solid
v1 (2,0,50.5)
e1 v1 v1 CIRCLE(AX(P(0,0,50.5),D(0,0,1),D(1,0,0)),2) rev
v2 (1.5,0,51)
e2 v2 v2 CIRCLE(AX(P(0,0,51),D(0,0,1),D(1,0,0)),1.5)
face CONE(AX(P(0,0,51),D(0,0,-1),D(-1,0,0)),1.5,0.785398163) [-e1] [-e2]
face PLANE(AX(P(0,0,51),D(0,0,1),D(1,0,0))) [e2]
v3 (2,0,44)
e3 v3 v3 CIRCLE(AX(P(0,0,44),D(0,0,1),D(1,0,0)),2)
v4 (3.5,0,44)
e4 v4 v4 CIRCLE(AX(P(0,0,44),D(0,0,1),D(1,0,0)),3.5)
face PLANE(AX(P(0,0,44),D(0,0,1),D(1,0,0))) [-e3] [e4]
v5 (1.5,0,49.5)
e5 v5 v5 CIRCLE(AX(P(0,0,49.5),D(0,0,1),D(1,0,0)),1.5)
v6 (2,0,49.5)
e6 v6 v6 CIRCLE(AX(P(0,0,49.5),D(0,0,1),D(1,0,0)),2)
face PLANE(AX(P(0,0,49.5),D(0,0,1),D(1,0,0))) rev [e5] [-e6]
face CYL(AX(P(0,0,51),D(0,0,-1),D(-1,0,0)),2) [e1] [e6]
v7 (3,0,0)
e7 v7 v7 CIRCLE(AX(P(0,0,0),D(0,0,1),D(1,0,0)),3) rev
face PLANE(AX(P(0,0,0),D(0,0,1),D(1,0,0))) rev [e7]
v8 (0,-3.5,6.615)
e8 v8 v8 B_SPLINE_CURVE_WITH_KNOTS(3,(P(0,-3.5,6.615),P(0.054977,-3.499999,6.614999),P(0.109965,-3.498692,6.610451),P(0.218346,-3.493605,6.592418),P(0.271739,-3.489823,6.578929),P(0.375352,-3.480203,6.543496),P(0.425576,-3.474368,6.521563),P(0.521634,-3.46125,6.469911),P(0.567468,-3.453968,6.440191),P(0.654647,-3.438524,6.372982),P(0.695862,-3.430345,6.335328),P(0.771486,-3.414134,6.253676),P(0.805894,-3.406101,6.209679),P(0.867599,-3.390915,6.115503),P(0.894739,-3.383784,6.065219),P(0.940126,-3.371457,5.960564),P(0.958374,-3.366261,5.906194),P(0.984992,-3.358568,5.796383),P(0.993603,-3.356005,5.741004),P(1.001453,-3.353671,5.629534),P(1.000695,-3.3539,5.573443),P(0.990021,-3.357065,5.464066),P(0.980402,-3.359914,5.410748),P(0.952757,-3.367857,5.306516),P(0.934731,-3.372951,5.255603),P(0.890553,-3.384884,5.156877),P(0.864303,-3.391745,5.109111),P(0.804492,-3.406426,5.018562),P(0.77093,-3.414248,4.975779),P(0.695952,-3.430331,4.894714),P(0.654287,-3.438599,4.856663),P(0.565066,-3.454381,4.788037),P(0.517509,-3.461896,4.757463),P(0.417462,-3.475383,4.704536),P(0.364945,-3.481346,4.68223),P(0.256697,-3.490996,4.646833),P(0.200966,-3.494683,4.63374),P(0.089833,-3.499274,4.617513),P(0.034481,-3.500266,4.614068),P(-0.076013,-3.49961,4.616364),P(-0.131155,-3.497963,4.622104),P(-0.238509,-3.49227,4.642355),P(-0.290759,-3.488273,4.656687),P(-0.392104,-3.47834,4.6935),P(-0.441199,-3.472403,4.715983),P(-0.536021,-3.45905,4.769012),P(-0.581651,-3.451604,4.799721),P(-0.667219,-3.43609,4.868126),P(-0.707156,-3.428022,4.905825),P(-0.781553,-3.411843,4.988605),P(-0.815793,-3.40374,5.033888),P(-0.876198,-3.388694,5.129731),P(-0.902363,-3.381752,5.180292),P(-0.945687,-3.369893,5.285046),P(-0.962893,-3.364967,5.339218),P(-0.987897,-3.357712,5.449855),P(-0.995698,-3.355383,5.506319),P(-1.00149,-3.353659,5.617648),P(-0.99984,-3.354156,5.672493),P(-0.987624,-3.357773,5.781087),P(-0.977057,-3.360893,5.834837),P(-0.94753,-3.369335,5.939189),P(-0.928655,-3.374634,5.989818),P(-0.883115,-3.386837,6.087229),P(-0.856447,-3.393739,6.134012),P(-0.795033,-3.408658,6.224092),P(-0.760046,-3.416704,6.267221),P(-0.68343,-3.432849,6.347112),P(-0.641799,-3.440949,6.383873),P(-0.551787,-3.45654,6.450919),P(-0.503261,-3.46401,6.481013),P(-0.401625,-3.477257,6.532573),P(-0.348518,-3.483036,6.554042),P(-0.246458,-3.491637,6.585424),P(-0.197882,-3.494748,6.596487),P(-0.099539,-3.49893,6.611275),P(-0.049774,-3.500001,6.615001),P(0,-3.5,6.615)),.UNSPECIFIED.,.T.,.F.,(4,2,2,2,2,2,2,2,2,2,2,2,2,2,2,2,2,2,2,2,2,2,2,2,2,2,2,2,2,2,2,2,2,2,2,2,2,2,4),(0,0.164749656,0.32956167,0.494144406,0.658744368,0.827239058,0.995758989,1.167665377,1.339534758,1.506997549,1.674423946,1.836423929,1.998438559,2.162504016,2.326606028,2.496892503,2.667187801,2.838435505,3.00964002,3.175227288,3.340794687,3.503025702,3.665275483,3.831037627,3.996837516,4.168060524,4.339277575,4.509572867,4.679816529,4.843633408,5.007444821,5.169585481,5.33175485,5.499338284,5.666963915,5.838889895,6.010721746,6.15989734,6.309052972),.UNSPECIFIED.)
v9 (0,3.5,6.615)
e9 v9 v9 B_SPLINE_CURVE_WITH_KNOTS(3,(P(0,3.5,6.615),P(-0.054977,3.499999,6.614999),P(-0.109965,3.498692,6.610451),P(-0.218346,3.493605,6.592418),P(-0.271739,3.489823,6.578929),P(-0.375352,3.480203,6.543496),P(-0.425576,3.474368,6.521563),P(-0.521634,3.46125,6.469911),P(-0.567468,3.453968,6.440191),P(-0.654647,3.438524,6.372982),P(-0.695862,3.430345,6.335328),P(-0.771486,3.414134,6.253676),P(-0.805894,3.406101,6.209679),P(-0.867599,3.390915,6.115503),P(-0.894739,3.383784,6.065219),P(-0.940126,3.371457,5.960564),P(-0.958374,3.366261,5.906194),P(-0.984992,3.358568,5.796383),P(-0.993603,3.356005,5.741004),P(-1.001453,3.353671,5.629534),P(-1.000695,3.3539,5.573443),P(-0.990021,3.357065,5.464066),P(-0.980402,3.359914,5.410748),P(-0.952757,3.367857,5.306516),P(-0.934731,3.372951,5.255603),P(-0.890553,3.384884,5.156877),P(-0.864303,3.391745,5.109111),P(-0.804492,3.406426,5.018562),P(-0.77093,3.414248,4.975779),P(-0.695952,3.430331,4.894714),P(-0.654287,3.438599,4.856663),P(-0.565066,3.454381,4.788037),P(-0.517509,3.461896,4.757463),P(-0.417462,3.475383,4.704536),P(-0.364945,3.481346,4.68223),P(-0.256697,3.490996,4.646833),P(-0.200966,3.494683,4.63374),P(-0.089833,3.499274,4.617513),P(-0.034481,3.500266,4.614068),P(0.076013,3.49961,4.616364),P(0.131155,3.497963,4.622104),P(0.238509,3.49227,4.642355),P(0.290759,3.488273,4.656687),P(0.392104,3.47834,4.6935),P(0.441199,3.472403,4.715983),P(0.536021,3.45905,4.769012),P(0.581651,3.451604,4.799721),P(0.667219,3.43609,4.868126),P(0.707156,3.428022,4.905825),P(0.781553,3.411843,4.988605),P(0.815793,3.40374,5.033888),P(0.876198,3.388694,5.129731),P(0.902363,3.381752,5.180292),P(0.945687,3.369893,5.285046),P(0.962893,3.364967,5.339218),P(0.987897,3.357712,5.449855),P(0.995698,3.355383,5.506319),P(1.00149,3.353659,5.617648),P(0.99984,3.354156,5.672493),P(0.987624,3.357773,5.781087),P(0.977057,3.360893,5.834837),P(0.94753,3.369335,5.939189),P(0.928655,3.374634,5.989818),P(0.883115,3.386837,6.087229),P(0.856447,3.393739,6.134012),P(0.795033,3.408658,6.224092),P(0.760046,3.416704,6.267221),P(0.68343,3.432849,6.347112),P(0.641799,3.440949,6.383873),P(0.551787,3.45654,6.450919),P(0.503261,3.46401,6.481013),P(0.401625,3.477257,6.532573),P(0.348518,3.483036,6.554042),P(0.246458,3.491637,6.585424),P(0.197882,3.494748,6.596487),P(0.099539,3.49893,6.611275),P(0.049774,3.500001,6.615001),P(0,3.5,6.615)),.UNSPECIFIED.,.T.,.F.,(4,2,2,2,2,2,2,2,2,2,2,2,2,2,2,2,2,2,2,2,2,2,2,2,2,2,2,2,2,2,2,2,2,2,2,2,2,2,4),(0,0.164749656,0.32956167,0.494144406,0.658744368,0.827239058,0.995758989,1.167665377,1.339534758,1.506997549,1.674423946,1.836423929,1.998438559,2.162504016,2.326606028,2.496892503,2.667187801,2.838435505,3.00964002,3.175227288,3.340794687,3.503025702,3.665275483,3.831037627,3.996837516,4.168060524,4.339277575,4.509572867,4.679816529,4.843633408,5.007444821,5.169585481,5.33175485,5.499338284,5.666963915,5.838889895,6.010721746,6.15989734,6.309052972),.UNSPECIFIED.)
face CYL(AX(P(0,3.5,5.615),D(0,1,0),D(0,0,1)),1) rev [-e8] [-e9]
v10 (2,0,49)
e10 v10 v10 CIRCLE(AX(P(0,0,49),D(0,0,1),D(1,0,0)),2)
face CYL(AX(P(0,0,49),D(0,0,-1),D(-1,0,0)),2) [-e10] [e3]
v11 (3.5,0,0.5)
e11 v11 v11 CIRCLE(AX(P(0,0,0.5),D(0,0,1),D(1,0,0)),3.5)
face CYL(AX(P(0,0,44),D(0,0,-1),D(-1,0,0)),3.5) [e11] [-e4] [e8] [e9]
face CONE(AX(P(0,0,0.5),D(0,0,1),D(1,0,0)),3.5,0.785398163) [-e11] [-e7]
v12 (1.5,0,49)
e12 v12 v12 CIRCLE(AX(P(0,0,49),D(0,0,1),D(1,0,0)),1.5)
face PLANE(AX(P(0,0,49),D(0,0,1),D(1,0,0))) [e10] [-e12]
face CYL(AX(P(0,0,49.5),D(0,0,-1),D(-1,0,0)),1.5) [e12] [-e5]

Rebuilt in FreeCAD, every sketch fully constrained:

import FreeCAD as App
import Part
import Sketcher
Q = App.Units.Quantity


def edges_at(feature, points):
    """Names of the edges that pass closest to the given points."""
    edges = feature.Shape.Edges
    near = lambda p: min(range(len(edges)), key=lambda i: edges[i].distToShape(Part.Vertex(*p))[0])
    return sorted({f"Edge{near(p) + 1}" for p in points})

doc = App.newDocument("Part")
body = doc.addObject("PartDesign::Body", "Body")

# Sketch on XY plane
sketch1 = doc.addObject("Sketcher::SketchObject", "Sketch")
body.addObject(sketch1)
sketch1.AttachmentSupport = (doc.XY_Plane, [""])
sketch1.MapMode = "FlatFace"
sketch1.addGeometry(Part.Circle(App.Vector(0, 0, 0), App.Vector(0, 0, 1), 3.5), False)
sketch1.addConstraint([
    Sketcher.Constraint("Coincident", 0, 3, -1, 1),
    Sketcher.Constraint("Diameter", 0, Q("7 mm")),
])
pad1 = doc.addObject("PartDesign::Pad", "Pad")
body.addObject(pad1)
pad1.Profile = sketch1
pad1.Length = 44

# Sketch on XY plane
sketch2 = doc.addObject("Sketcher::SketchObject", "Sketch001")
body.addObject(sketch2)
sketch2.AttachmentSupport = (doc.XY_Plane, [""])
sketch2.MapMode = "FlatFace"
sketch2.AttachmentOffset = App.Placement(App.Vector(0, 0, 44), App.Rotation())
sketch2.addGeometry(Part.Circle(App.Vector(0, 0, 0), App.Vector(0, 0, 1), 2), False)
sketch2.addConstraint([
    Sketcher.Constraint("Coincident", 0, 3, -1, 1),
    Sketcher.Constraint("Diameter", 0, Q("4 mm")),
])
pad2 = doc.addObject("PartDesign::Pad", "Pad001")
body.addObject(pad2)
pad2.Profile = sketch2
pad2.Length = 5

# Sketch on XY plane
sketch3 = doc.addObject("Sketcher::SketchObject", "Sketch002")
body.addObject(sketch3)
sketch3.AttachmentSupport = (doc.XY_Plane, [""])
sketch3.MapMode = "FlatFace"
sketch3.AttachmentOffset = App.Placement(App.Vector(0, 0, 49), App.Rotation())
sketch3.addGeometry(Part.Circle(App.Vector(0, 0, 0), App.Vector(0, 0, 1), 1.5), False)
sketch3.addConstraint([
    Sketcher.Constraint("Coincident", 0, 3, -1, 1),
    Sketcher.Constraint("Diameter", 0, Q("3 mm")),
])
pad3 = doc.addObject("PartDesign::Pad", "Pad002")
body.addObject(pad3)
pad3.Profile = sketch3
pad3.Length = 0.5

# Sketch on XY plane
sketch4 = doc.addObject("Sketcher::SketchObject", "Sketch003")
body.addObject(sketch4)
sketch4.AttachmentSupport = (doc.XY_Plane, [""])
sketch4.MapMode = "FlatFace"
sketch4.AttachmentOffset = App.Placement(App.Vector(0, 0, 49.5), App.Rotation())
sketch4.addGeometry(Part.Circle(App.Vector(0, 0, 0), App.Vector(0, 0, 1), 2), False)
sketch4.addConstraint([
    Sketcher.Constraint("Coincident", 0, 3, -1, 1),
    Sketcher.Constraint("Diameter", 0, Q("4 mm")),
])
pad4 = doc.addObject("PartDesign::Pad", "Pad003")
body.addObject(pad4)
pad4.Profile = sketch4
pad4.Length = 1.5
doc.recompute()

chamfer = doc.addObject("PartDesign::Chamfer", "Chamfer")
body.addObject(chamfer)
chamfer.Base = (pad4, edges_at(pad4, [(-2, 0, 51)]))
chamfer.Size = 0.5
doc.recompute()

chamfer2 = doc.addObject("PartDesign::Chamfer", "Chamfer001")
body.addObject(chamfer2)
chamfer2.Base = (chamfer, edges_at(chamfer, [(-3.5, 0, 0)]))
chamfer2.Size = 0.5

# Sketch on XZ plane
sketch5 = doc.addObject("Sketcher::SketchObject", "Sketch004")
body.addObject(sketch5)
sketch5.AttachmentSupport = (doc.XZ_Plane, [""])
sketch5.MapMode = "FlatFace"
sketch5.AttachmentOffset = App.Placement(App.Vector(0, 0, -3.5), App.Rotation())
sketch5.addGeometry(Part.Circle(App.Vector(0, 5.6, 0), App.Vector(0, 0, 1), 1), False)
sketch5.addConstraint([
    Sketcher.Constraint("PointOnObject", 0, 3, -2),
    Sketcher.Constraint("Diameter", 0, Q("2 mm")),
    Sketcher.Constraint("DistanceY", -1, 1, 0, 3, Q("5.615 mm")),
])
doc.recompute()
hole = doc.addObject("PartDesign::Hole", "Hole")
body.addObject(hole)
hole.Profile = sketch5
hole.ThreadType = "None"
hole.Diameter = 2
hole.DepthType = "ThroughAll"
hole.Reversed = True

doc.recompute()
